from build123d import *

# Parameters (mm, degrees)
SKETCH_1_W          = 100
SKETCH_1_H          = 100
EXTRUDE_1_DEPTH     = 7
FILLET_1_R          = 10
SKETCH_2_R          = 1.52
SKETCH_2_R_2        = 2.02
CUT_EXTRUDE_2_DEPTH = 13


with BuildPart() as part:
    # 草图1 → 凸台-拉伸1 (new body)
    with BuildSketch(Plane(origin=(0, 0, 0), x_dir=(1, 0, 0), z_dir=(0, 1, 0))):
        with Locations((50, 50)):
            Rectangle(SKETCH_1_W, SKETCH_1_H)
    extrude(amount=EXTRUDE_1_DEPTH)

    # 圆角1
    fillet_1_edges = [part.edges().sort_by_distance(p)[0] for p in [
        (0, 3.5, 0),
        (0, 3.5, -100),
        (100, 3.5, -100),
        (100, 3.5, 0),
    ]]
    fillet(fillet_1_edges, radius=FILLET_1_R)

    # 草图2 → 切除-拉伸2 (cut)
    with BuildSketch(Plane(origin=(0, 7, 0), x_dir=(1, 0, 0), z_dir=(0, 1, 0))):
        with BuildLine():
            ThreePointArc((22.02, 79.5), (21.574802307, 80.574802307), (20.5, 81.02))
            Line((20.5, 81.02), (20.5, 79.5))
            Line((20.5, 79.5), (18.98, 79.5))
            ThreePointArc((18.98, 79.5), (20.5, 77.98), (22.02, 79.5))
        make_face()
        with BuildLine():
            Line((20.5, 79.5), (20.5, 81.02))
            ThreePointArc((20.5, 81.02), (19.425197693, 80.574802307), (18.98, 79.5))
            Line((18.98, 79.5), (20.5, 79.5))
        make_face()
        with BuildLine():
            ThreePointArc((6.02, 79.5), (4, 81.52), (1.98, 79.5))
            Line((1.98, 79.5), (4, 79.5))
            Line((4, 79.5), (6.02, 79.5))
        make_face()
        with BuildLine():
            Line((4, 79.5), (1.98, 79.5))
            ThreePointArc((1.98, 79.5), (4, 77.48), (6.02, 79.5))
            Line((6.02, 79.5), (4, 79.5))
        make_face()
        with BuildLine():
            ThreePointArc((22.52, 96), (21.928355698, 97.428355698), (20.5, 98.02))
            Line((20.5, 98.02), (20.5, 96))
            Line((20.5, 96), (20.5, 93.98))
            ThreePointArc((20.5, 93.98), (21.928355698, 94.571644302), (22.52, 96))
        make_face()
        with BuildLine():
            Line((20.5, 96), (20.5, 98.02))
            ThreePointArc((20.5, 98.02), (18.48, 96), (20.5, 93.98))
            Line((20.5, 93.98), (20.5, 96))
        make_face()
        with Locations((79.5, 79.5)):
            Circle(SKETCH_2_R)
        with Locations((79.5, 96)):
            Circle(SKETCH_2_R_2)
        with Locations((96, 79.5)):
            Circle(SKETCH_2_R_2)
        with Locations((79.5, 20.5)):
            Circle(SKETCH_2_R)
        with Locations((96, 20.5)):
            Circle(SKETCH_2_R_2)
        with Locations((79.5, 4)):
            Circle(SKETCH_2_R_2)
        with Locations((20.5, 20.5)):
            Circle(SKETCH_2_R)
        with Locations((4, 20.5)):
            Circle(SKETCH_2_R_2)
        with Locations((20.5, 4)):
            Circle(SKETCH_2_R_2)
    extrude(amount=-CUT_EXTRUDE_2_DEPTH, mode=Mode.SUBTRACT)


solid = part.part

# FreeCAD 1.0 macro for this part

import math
import FreeCAD as App
import Part
import Sketcher

V = App.Vector


def edges_at(feature, points):
    """Names of the edges that pass closest to the given points."""
    edges = feature.Shape.Edges
    near = lambda p: min(range(len(edges)), key=lambda i: edges[i].distToShape(Part.Vertex(*p))[0])
    return sorted({f"Edge{near(p) + 1}" for p in points})


def add_polygon(sketch, points):
    """Adds a closed chain of lines whose ends are joined by coincident constraints."""
    first, n = sketch.GeometryCount, len(points)
    for a, b in zip(points, points[1:] + points[:1]):
        sketch.addGeometry(Part.LineSegment(App.Vector(*a, 0), App.Vector(*b, 0)), False)
    for i in range(n):
        sketch.addConstraint(Sketcher.Constraint("Coincident", first + i, 2, first + (i + 1) % n, 1))

doc = App.newDocument("Part")
body = doc.addObject("PartDesign::Body", "Body")

# Sketch on XZ plane
sketch1 = body.newObject("Sketcher::SketchObject", "Sketch")
sketch1.AttachmentSupport = (doc.getObject("XZ_Plane"), [""])
sketch1.MapMode = "FlatFace"
add_polygon(sketch1, [(0, -100), (0, 0), (100, 0), (100, -100)])  # lines 0-3
sketch1.addConstraint([
    Sketcher.Constraint("Vertical", 0),
    Sketcher.Constraint("Horizontal", 1),
    Sketcher.Constraint("Vertical", 2),
    Sketcher.Constraint("Horizontal", 3),
    Sketcher.Constraint("Coincident", 0, 2, -1, 1),
    Sketcher.Constraint("Equal", 3, 0),
    Sketcher.Constraint("DistanceX", 1, 1, 1, 2, 100.0),
])
pad1 = body.newObject("PartDesign::Pad", "Pad")
pad1.Profile = sketch1
pad1.Length = 7
pad1.Reversed = True
doc.recompute()

fillet = body.newObject("PartDesign::Fillet", "Fillet")
fillet.Base = (pad1, edges_at(pad1, [
    (0, 3.5, 0),
    (0, 3.5, -100),
    (100, 3.5, -100),
    (100, 3.5, 0),
]))
fillet.Radius = 10

# Sketch on XZ plane
sketch2 = body.newObject("Sketcher::SketchObject", "Sketch001")
sketch2.AttachmentSupport = (doc.getObject("XZ_Plane"), [""])
sketch2.MapMode = "FlatFace"
sketch2.AttachmentOffset = App.Placement(V(0, 0, -7), App.Rotation())
sketch2.addGeometry([
    Part.ArcOfCircle(Part.Circle(V(20.5, -79.5, 0), V(0, 0, 1), 1.5), math.radians(-90), math.radians(0)),  # 0
    Part.ArcOfCircle(Part.Circle(V(20.5, -79.5, 0), V(0, 0, 1), 1.5), math.radians(-180), math.radians(-90)),  # 1
    Part.ArcOfCircle(Part.Circle(V(20.5, -79.5, 0), V(0, 0, 1), 1.5), math.radians(0), math.radians(180)),  # 2
    Part.Circle(V(4, -79.5, 0), V(0, 0, 1), 2),  # 3
    Part.ArcOfCircle(Part.Circle(V(20.5, -96, 0), V(0, 0, 1), 2), math.radians(-90), math.radians(0)),  # 4
    Part.ArcOfCircle(Part.Circle(V(20.5, -96, 0), V(0, 0, 1), 2), math.radians(90), math.radians(270)),  # 5
    Part.ArcOfCircle(Part.Circle(V(20.5, -96, 0), V(0, 0, 1), 2), math.radians(0), math.radians(90)),  # 6
    Part.Circle(V(79.5, -79.5, 0), V(0, 0, 1), 1.5),  # 7
    Part.Circle(V(79.5, -96, 0), V(0, 0, 1), 2),  # 8
    Part.Circle(V(96, -79.5, 0), V(0, 0, 1), 2),  # 9
    Part.Circle(V(79.5, -20.5, 0), V(0, 0, 1), 1.5),  # 10
    Part.Circle(V(96, -20.5, 0), V(0, 0, 1), 2),  # 11
    Part.Circle(V(79.5, -4, 0), V(0, 0, 1), 2),  # 12
    Part.Circle(V(20.5, -20.5, 0), V(0, 0, 1), 1.5),  # 13
    Part.Circle(V(4, -20.5, 0), V(0, 0, 1), 2),  # 14
    Part.Circle(V(20.5, -4, 0), V(0, 0, 1), 2),  # 15
], False)
sketch2.addConstraint([
    Sketcher.Constraint("Tangent", 0, 1, 1, 2),
    Sketcher.Constraint("Tangent", 1, 1, 2, 2),
    Sketcher.Constraint("Tangent", 2, 1, 0, 2),
    Sketcher.Constraint("Tangent", 4, 1, 5, 2),
    Sketcher.Constraint("Tangent", 5, 1, 6, 2),
    Sketcher.Constraint("Tangent", 6, 1, 4, 2),
    Sketcher.Constraint("Equal", 3, 4),
    Sketcher.Constraint("Equal", 2, 7),
    Sketcher.Constraint("Equal", 6, 8),
    Sketcher.Constraint("Equal", 8, 9),
    Sketcher.Constraint("Equal", 7, 10),
    Sketcher.Constraint("Equal", 9, 11),
    Sketcher.Constraint("Equal", 11, 12),
    Sketcher.Constraint("Equal", 10, 13),
    Sketcher.Constraint("Equal", 12, 14),
    Sketcher.Constraint("Equal", 14, 15),
    Sketcher.Constraint("Horizontal", 2, 3, 3, 3),
    Sketcher.Constraint("Horizontal", 3, 3, 7, 3),
    Sketcher.Constraint("Horizontal", 6, 3, 8, 3),
    Sketcher.Constraint("Horizontal", 7, 3, 9, 3),
    Sketcher.Constraint("Horizontal", 10, 3, 11, 3),
    Sketcher.Constraint("Horizontal", 11, 3, 13, 3),
    Sketcher.Constraint("Horizontal", 13, 3, 14, 3),
    Sketcher.Constraint("Horizontal", 12, 3, 15, 3),
    Sketcher.Constraint("Horizontal", 9, 3, 1, 1),
    Sketcher.Constraint("Horizontal", 1, 1, 2, 1),
    Sketcher.Constraint("Horizontal", 8, 3, 6, 1),
    Sketcher.Constraint("Vertical", 2, 3, 4, 3),
    Sketcher.Constraint("Vertical", 7, 3, 8, 3),
    Sketcher.Constraint("Vertical", 8, 3, 10, 3),
    Sketcher.Constraint("Vertical", 9, 3, 11, 3),
    Sketcher.Constraint("Vertical", 10, 3, 12, 3),
    Sketcher.Constraint("Vertical", 6, 3, 13, 3),
    Sketcher.Constraint("Vertical", 3, 3, 14, 3),
    Sketcher.Constraint("Vertical", 13, 3, 15, 3),
    Sketcher.Constraint("Vertical", 15, 3, 0, 1),
    Sketcher.Constraint("Vertical", 0, 1, 4, 1),
    Sketcher.Constraint("Vertical", 4, 1, 5, 1),
    Sketcher.Constraint("Diameter", 3, 4.04),
    Sketcher.Constraint("Diameter", 7, 3.04),
    Sketcher.Constraint("DistanceX", -1, 1, 3, 3, 4.0),
    Sketcher.Constraint("DistanceY", 4, 3, -1, 1, 96.0),
    Sketcher.Constraint("DistanceX", -1, 1, 9, 3, 96.0),
    Sketcher.Constraint("DistanceY", 12, 3, -1, 1, 4.0),
    Sketcher.Constraint("DistanceX", 1, 3, 7, 3, 59.0),
    Sketcher.Constraint("DistanceY", 7, 3, 10, 3, 59.0),
    Sketcher.Constraint("DistanceY", 4, 1, 0, 1, 17.0),
    Sketcher.Constraint("DistanceX", -1, 1, 0, 3, 20.5),
])
pocket1 = body.newObject("PartDesign::Pocket", "Pocket")
pocket1.Profile = sketch2
pocket1.Length = 13
pocket1.Reversed = True

doc.recompute()
